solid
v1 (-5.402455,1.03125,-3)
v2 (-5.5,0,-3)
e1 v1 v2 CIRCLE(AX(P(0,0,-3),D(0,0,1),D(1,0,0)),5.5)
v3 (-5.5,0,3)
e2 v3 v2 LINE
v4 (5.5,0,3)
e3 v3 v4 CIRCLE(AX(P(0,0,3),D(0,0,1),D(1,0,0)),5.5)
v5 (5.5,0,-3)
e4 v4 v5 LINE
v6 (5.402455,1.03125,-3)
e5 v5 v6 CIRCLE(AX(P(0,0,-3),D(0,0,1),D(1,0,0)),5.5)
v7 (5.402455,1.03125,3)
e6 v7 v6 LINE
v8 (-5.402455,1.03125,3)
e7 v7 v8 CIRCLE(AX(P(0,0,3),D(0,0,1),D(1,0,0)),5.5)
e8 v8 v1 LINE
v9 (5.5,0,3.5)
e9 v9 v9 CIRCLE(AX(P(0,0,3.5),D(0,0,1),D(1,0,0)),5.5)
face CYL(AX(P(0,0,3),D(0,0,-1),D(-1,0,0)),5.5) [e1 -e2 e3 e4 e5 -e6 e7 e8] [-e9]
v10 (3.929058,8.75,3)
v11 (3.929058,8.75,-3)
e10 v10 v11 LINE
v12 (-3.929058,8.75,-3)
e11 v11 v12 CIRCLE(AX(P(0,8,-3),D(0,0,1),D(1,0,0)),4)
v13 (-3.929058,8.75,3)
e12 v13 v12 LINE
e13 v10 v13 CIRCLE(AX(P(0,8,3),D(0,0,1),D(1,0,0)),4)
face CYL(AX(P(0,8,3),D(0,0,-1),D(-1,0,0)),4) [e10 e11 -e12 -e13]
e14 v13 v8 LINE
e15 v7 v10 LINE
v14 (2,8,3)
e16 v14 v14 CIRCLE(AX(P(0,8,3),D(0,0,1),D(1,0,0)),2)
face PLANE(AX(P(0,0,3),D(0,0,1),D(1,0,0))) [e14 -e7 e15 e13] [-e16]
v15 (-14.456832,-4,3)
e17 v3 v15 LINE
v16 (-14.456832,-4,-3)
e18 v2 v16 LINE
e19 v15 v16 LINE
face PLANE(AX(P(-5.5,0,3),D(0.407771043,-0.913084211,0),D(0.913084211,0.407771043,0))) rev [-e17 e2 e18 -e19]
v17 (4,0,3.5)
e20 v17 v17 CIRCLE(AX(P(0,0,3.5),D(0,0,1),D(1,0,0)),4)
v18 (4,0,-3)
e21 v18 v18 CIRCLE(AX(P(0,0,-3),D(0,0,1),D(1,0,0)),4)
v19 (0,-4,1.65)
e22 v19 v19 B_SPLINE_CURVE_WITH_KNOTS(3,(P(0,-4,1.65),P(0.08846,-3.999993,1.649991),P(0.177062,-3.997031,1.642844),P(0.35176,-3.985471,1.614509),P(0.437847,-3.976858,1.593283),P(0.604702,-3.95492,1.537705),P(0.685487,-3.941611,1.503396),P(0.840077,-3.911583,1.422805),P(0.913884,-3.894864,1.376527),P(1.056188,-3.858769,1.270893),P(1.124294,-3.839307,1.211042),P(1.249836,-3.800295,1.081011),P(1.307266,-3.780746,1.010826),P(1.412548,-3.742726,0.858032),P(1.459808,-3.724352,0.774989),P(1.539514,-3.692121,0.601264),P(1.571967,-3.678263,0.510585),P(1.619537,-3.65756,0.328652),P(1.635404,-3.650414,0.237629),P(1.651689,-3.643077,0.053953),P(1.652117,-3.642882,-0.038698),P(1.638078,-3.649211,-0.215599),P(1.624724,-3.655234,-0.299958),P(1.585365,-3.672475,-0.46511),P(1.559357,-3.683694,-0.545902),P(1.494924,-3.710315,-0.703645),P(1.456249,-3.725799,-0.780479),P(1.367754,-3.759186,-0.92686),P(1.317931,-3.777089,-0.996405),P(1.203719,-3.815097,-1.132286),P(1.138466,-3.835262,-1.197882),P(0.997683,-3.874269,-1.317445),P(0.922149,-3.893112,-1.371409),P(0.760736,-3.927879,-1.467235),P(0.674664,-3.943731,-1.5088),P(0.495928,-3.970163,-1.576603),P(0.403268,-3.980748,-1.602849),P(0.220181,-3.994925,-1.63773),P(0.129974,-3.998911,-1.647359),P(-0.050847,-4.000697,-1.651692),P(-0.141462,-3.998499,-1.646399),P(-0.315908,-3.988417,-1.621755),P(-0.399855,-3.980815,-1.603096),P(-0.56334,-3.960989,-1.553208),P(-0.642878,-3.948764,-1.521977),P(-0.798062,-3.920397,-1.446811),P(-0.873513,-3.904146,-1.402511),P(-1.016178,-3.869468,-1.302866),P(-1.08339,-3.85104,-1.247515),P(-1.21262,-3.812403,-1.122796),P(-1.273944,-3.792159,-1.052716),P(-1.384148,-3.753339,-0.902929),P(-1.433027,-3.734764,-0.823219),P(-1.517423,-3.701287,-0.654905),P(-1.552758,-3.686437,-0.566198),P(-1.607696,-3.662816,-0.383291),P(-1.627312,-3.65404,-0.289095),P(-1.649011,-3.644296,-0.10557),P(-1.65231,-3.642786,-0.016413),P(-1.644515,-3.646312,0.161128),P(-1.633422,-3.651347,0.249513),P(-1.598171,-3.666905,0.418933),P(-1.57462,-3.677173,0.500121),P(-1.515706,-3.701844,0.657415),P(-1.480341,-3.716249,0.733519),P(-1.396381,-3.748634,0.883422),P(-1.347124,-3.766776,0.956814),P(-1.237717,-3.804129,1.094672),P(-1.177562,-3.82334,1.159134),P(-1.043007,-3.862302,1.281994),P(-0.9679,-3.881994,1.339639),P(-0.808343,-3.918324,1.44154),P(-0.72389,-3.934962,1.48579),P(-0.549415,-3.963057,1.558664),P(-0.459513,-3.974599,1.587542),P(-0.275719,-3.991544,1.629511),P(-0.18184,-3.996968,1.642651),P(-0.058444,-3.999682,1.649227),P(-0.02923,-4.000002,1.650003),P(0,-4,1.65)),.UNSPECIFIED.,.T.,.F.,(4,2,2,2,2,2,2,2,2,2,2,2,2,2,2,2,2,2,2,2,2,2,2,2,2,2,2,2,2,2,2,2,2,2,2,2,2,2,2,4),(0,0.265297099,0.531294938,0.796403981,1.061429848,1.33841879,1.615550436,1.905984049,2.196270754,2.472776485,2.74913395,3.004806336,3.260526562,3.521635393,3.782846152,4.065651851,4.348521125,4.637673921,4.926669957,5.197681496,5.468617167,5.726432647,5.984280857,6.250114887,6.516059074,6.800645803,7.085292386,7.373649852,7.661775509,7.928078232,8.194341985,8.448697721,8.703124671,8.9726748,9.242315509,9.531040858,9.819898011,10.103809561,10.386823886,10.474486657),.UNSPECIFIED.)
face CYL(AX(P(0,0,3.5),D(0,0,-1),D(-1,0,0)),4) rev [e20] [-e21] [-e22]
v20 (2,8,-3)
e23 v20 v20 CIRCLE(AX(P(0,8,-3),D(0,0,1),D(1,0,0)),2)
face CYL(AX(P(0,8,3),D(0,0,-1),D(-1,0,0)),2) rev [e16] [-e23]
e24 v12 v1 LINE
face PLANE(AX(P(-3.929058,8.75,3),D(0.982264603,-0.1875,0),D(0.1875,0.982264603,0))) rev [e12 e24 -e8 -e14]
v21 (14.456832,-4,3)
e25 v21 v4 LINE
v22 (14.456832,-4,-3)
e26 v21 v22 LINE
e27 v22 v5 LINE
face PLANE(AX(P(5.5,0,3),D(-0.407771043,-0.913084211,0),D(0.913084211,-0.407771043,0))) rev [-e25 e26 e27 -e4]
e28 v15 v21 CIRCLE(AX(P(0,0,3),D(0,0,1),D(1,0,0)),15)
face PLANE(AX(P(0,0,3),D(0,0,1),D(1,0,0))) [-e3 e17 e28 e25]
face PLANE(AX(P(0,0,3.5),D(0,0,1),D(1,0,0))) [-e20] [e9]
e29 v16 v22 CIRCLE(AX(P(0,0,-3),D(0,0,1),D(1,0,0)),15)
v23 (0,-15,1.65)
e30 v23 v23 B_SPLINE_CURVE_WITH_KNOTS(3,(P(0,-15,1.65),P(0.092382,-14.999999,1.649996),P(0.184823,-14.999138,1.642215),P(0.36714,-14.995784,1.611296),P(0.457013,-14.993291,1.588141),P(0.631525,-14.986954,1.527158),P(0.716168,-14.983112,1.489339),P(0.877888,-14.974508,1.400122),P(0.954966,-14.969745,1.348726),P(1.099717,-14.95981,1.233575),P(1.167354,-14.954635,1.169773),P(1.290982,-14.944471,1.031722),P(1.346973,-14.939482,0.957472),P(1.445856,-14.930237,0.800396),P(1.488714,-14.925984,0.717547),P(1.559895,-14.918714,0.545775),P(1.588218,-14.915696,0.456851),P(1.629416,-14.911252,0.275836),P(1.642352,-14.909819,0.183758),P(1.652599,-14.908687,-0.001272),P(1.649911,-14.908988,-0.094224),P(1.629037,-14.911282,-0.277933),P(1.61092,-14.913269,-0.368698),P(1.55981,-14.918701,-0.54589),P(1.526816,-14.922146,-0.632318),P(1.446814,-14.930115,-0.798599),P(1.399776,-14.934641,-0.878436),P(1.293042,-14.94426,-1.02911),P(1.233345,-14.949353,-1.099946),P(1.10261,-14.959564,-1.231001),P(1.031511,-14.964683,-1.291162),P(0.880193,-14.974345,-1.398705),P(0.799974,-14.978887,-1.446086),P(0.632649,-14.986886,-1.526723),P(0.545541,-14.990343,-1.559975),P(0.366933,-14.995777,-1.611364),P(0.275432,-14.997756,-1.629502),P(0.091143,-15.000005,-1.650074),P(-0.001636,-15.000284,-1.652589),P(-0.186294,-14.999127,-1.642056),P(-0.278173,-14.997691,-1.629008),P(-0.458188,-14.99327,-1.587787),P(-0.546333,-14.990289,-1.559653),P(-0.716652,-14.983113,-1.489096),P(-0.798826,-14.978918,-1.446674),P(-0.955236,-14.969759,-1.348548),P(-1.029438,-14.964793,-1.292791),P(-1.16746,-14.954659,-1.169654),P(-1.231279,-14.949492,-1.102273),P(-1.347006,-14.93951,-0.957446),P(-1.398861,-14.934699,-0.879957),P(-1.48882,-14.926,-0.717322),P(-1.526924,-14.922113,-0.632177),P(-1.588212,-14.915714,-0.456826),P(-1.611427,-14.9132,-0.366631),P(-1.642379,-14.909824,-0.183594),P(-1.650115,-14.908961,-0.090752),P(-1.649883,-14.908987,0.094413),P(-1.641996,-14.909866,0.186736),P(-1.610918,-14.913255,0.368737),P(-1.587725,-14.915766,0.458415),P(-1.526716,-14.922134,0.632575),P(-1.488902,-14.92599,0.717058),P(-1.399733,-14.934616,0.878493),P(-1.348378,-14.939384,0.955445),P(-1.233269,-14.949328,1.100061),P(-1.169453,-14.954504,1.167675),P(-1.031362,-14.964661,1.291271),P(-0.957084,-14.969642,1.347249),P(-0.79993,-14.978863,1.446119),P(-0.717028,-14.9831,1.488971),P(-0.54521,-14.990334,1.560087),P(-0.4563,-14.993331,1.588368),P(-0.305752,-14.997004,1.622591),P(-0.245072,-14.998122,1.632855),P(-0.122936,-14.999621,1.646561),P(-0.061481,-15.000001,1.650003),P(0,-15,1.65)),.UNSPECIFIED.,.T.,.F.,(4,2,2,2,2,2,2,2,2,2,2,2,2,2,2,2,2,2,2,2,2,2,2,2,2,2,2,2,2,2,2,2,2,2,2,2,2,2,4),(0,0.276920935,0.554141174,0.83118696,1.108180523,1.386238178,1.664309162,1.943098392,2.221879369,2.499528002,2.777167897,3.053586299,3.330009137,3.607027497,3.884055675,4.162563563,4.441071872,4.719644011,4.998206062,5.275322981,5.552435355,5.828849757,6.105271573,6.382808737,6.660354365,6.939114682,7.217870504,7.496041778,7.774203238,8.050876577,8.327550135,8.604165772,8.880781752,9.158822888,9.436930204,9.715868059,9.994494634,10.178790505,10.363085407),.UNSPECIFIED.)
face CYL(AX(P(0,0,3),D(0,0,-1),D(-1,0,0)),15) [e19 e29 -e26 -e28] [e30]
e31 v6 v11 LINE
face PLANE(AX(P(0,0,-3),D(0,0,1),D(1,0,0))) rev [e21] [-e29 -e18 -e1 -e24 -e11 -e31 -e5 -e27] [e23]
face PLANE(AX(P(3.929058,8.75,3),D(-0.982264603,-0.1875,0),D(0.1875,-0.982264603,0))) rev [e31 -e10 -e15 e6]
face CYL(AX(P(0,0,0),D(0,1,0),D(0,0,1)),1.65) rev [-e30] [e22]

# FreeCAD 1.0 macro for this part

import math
import FreeCAD as App
import Part
import Sketcher
Q = App.Units.Quantity

doc = App.newDocument("Part")
body = doc.addObject("PartDesign::Body", "Body")

sketch1 = body.newObject("Sketcher::SketchObject", "Sketch")
sketch1.AttachmentSupport = (doc.getObject("XY_Plane"), [""])
sketch1.MapMode = "FlatFace"
sketch1.addGeometry([
    Part.LineSegment(App.Vector(-5.5, 0, 0), App.Vector(-14.5, -4, 0)),
    Part.ArcOfCircle(Part.Circle(App.Vector(0, 0, 0), App.Vector(0, 0, 1), 15), math.radians(-165), math.radians(-15)),
    Part.LineSegment(App.Vector(14.5, -4, 0), App.Vector(5.5, 0, 0)),
    Part.ArcOfCircle(Part.Circle(App.Vector(0, 0, 0), App.Vector(0, 0, 1), 5.5), math.radians(0), math.radians(10.81)),
    Part.LineSegment(App.Vector(5.4, 1, 0), App.Vector(3.9, 8.8, 0)),
    Part.ArcOfCircle(Part.Circle(App.Vector(0, 8, 0), App.Vector(0, 0, 1), 4), math.radians(11), math.radians(169)),
    Part.LineSegment(App.Vector(-3.9, 8.8, 0), App.Vector(-5.4, 1, 0)),
    Part.ArcOfCircle(Part.Circle(App.Vector(0, 0, 0), App.Vector(0, 0, 1), 5.5), math.radians(169.19), math.radians(180)),
    Part.Circle(App.Vector(0, 8, 0), App.Vector(0, 0, 1), 2),
], False)
sketch1.addConstraint([
    Sketcher.Constraint("Coincident", 0, 2, 1, 1),
    Sketcher.Constraint("Coincident", 1, 2, 2, 1),
    Sketcher.Constraint("Coincident", 2, 2, 3, 1),
    Sketcher.Constraint("Tangent", 3, 2, 4, 1),
    Sketcher.Constraint("Tangent", 4, 2, 5, 1),
    Sketcher.Constraint("Tangent", 5, 2, 6, 1),
    Sketcher.Constraint("Tangent", 6, 2, 7, 1),
    Sketcher.Constraint("Coincident", 7, 2, 0, 1),
    Sketcher.Constraint("Coincident", 1, 3, -1, 1),
    Sketcher.Constraint("Coincident", 3, 3, -1, 1),
    Sketcher.Constraint("Coincident", 7, 3, -1, 1),
    Sketcher.Constraint("Coincident", 8, 3, 5, 3),
    Sketcher.Constraint("Equal", 3, 7),
    Sketcher.Constraint("PointOnObject", 5, 3, -2),
    Sketcher.Constraint("PointOnObject", 2, 2, -1),
    Sketcher.Constraint("PointOnObject", 7, 2, -1),
    Sketcher.Constraint("Horizontal", 0, 2, 1, 2),
    Sketcher.Constraint("Diameter", 8, 4.0),
    Sketcher.Constraint("Radius", 1, 15.0),
    Sketcher.Constraint("Radius", 5, 4.0),
    Sketcher.Constraint("Radius", 3, 5.5),
    Sketcher.Constraint("DistanceY", -1, 1, 5, 3, 8.0),
    Sketcher.Constraint("DistanceY", 0, 2, -1, 1, 4.0),
])
pad1 = body.newObject("PartDesign::Pad", "Pad")
pad1.Profile = sketch1
pad1.Length = 6
pad1.Midplane = True

sketch2 = body.newObject("Sketcher::SketchObject", "Sketch001")
sketch2.AttachmentSupport = (doc.getObject("XY_Plane"), [""])
sketch2.MapMode = "FlatFace"
sketch2.AttachmentOffset = App.Placement(App.Vector(0, 0, 3), App.Rotation())
sketch2.addGeometry([
    Part.Circle(App.Vector(0, 0, 0), App.Vector(0, 0, 1), 5.5),
    Part.Circle(App.Vector(0, 0, 0), App.Vector(0, 0, 1), 4),
], False)
sketch2.addConstraint([
    Sketcher.Constraint("Coincident", 0, 3, -1, 1),
    Sketcher.Constraint("Coincident", 1, 3, -1, 1),
    Sketcher.Constraint("Diameter", 0, 11.0),
    Sketcher.Constraint("Diameter", 1, 8.0),
])
pad2 = body.newObject("PartDesign::Pad", "Pad001")
pad2.Profile = sketch2
pad2.Length = 0.5

sketch3 = body.newObject("Sketcher::SketchObject", "Sketch002")
sketch3.AttachmentSupport = (doc.getObject("XY_Plane"), [""])
sketch3.MapMode = "FlatFace"
sketch3.AttachmentOffset = App.Placement(App.Vector(0, 0, 3), App.Rotation())
sketch3.addGeometry(Part.Circle(App.Vector(0, 0, 0), App.Vector(0, 0, 1), 4), False)
sketch3.addConstraint([
    Sketcher.Constraint("Coincident", 0, 3, -1, 1),
    Sketcher.Constraint("Diameter", 0, 8.0),
])
pocket1 = body.newObject("PartDesign::Pocket", "Pocket")
pocket1.Profile = sketch3
pocket1.Type = "ThroughAll"

sketch4 = body.newObject("Sketcher::SketchObject", "Sketch003")
sketch4.AttachmentSupport = (doc.getObject("YZ_Plane"), [""])
sketch4.MapMode = "FlatFace"
sketch4.addGeometry([
    Part.LineSegment(App.Vector(-22.5, 0, 0), App.Vector(0, 0, 0)),
    Part.LineSegment(App.Vector(0, 0, 0), App.Vector(0, 1.6, 0)),
    Part.LineSegment(App.Vector(0, 1.6, 0), App.Vector(-21.5, 1.6, 0)),
    Part.LineSegment(App.Vector(-21.5, 1.6, 0), App.Vector(-22.5, 0, 0)),
], False)
sketch4.addConstraint([
    Sketcher.Constraint("Coincident", 0, 2, 1, 1),
    Sketcher.Constraint("Coincident", 1, 2, 2, 1),
    Sketcher.Constraint("Coincident", 2, 2, 3, 1),
    Sketcher.Constraint("Coincident", 3, 2, 0, 1),
    Sketcher.Constraint("Horizontal", 0),
    Sketcher.Constraint("Vertical", 1),
    Sketcher.Constraint("Horizontal", 2),
    Sketcher.Constraint("Coincident", 0, 2, -1, 1),
    Sketcher.Constraint("Angle", 3, Q("-121 deg")),
    Sketcher.Constraint("DistanceX", 2, 2, 2, 1, 21.5),
    Sketcher.Constraint("DistanceY", 1, 1, 1, 2, 1.65),
])
groove = body.newObject("PartDesign::Groove", "Groove")
groove.Profile = sketch4
groove.ReferenceAxis = (sketch4, ["H_Axis"])
groove.Angle = 360

doc.recompute()
